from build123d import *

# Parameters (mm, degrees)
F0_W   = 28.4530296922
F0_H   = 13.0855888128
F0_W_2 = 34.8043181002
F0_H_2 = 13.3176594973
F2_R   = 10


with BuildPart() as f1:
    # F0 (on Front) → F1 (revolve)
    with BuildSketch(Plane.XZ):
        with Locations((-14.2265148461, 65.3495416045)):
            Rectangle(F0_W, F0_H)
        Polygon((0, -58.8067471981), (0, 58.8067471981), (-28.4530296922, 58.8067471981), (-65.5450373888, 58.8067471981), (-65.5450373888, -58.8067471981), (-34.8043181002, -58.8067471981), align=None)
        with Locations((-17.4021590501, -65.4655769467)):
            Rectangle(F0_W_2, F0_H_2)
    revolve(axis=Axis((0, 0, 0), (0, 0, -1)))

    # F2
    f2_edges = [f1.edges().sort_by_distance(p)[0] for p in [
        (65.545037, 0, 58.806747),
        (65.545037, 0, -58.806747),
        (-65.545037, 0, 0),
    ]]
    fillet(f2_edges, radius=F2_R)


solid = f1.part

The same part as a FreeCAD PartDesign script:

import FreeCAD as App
import Part
import Sketcher

V = App.Vector
Q = App.Units.Quantity


def edges_at(feature, points):
    """Names of the edges that pass closest to the given points."""
    edges = feature.Shape.Edges
    near = lambda p: min(range(len(edges)), key=lambda i: edges[i].distToShape(Part.Vertex(*p))[0])
    return sorted({f"Edge{near(p) + 1}" for p in points})


def add_polygon(sketch, points):
    """Adds a closed chain of lines whose ends are joined by coincident constraints."""
    first, n = sketch.GeometryCount, len(points)
    for a, b in zip(points, points[1:] + points[:1]):
        sketch.addGeometry(Part.LineSegment(App.Vector(*a, 0), App.Vector(*b, 0)), False)
    for i in range(n):
        sketch.addConstraint(Sketcher.Constraint("Coincident", first + i, 2, first + (i + 1) % n, 1))

doc = App.newDocument("Part")
body = doc.addObject("PartDesign::Body", "Body")

# Sketch on XZ plane
sketch1 = body.newObject("Sketcher::SketchObject", "Sketch")
sketch1.AttachmentSupport = (doc.getObject("XZ_Plane"), [""])
sketch1.MapMode = "FlatFace"
add_polygon(sketch1, [(-28, 72), (-28, 59), (-66, 59), (-66, -59), (-35, -59), (-35, -72), (0, -72), (0, 72)])  # lines 0-7
sketch1.addConstraint(Sketcher.Constraint("Vertical", 0))
sketch1.addConstraint(Sketcher.Constraint("Horizontal", 1))
sketch1.addConstraint(Sketcher.Constraint("Vertical", 2))
sketch1.addConstraint(Sketcher.Constraint("Horizontal", 3))
sketch1.addConstraint(Sketcher.Constraint("Vertical", 4))
sketch1.addConstraint(Sketcher.Constraint("Horizontal", 5))
sketch1.addConstraint(Sketcher.Constraint("Vertical", 6))
sketch1.addConstraint(Sketcher.Constraint("Horizontal", 7))
sketch1.addConstraint(Sketcher.Constraint("PointOnObject", 5, 2, -2))
sketch1.addConstraint(Sketcher.Constraint("DistanceX", 3, 1, 3, 2, Q("30.740719 mm")))
sketch1.addConstraint(Sketcher.Constraint("DistanceX", 5, 1, 5, 2, Q("34.804318 mm")))
sketch1.addConstraint(Sketcher.Constraint("DistanceX", 7, 2, 7, 1, Q("28.45303 mm")))
sketch1.addConstraint(Sketcher.Constraint("DistanceY", 0, 2, 0, 1, Q("13.085589 mm")))
sketch1.addConstraint(Sketcher.Constraint("DistanceY", 4, 2, 4, 1, Q("13.317659 mm")))
sketch1.addConstraint(Sketcher.Constraint("DistanceY", 2, 2, 2, 1, Q("117.613494 mm")))
sketch1.addConstraint(Sketcher.Constraint("DistanceY", -1, 1, 0, 2, Q("58.806747 mm")))
revolution = body.newObject("PartDesign::Revolution", "Revolution")
revolution.Profile = sketch1
revolution.ReferenceAxis = (sketch1, ["V_Axis"])
revolution.Angle = 360
doc.recompute()

fillet = body.newObject("PartDesign::Fillet", "Fillet")
fillet.Base = (revolution, edges_at(revolution, [(65.545, 0, 58.807), (65.545, 0, -58.807), (-65.545, 0, 0)]))
fillet.Radius = 10

doc.recompute()
